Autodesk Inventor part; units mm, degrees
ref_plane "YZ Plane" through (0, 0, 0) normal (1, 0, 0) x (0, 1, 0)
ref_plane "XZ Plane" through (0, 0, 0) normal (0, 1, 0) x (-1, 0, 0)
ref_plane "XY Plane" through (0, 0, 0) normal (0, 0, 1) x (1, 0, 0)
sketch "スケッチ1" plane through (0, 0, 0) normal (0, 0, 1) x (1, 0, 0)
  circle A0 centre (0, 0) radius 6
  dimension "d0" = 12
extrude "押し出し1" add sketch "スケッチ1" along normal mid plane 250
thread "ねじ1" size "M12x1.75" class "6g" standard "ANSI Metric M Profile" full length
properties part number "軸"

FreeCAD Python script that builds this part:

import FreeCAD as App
import Part
import Sketcher
from FreeCAD import Vector

doc = App.newDocument("Part")
body = doc.addObject("PartDesign::Body", "Body")

sketch1 = body.newObject("Sketcher::SketchObject", "Sketch")
sketch1.AttachmentSupport = (doc.getObject("XY_Plane"), [""])
sketch1.MapMode = "FlatFace"
sketch1.addGeometry(Part.Circle(Vector(0, 0, 0), Vector(0, 0, 1), 6), False)
sketch1.addConstraint([
    Sketcher.Constraint("Coincident", 0, 3, -1, 1),
    Sketcher.Constraint("Diameter", 0, 12.0),
])
pad1 = body.newObject("PartDesign::Pad", "Pad")
pad1.Profile = sketch1
pad1.Length = 250
pad1.Midplane = True

doc.recompute()
